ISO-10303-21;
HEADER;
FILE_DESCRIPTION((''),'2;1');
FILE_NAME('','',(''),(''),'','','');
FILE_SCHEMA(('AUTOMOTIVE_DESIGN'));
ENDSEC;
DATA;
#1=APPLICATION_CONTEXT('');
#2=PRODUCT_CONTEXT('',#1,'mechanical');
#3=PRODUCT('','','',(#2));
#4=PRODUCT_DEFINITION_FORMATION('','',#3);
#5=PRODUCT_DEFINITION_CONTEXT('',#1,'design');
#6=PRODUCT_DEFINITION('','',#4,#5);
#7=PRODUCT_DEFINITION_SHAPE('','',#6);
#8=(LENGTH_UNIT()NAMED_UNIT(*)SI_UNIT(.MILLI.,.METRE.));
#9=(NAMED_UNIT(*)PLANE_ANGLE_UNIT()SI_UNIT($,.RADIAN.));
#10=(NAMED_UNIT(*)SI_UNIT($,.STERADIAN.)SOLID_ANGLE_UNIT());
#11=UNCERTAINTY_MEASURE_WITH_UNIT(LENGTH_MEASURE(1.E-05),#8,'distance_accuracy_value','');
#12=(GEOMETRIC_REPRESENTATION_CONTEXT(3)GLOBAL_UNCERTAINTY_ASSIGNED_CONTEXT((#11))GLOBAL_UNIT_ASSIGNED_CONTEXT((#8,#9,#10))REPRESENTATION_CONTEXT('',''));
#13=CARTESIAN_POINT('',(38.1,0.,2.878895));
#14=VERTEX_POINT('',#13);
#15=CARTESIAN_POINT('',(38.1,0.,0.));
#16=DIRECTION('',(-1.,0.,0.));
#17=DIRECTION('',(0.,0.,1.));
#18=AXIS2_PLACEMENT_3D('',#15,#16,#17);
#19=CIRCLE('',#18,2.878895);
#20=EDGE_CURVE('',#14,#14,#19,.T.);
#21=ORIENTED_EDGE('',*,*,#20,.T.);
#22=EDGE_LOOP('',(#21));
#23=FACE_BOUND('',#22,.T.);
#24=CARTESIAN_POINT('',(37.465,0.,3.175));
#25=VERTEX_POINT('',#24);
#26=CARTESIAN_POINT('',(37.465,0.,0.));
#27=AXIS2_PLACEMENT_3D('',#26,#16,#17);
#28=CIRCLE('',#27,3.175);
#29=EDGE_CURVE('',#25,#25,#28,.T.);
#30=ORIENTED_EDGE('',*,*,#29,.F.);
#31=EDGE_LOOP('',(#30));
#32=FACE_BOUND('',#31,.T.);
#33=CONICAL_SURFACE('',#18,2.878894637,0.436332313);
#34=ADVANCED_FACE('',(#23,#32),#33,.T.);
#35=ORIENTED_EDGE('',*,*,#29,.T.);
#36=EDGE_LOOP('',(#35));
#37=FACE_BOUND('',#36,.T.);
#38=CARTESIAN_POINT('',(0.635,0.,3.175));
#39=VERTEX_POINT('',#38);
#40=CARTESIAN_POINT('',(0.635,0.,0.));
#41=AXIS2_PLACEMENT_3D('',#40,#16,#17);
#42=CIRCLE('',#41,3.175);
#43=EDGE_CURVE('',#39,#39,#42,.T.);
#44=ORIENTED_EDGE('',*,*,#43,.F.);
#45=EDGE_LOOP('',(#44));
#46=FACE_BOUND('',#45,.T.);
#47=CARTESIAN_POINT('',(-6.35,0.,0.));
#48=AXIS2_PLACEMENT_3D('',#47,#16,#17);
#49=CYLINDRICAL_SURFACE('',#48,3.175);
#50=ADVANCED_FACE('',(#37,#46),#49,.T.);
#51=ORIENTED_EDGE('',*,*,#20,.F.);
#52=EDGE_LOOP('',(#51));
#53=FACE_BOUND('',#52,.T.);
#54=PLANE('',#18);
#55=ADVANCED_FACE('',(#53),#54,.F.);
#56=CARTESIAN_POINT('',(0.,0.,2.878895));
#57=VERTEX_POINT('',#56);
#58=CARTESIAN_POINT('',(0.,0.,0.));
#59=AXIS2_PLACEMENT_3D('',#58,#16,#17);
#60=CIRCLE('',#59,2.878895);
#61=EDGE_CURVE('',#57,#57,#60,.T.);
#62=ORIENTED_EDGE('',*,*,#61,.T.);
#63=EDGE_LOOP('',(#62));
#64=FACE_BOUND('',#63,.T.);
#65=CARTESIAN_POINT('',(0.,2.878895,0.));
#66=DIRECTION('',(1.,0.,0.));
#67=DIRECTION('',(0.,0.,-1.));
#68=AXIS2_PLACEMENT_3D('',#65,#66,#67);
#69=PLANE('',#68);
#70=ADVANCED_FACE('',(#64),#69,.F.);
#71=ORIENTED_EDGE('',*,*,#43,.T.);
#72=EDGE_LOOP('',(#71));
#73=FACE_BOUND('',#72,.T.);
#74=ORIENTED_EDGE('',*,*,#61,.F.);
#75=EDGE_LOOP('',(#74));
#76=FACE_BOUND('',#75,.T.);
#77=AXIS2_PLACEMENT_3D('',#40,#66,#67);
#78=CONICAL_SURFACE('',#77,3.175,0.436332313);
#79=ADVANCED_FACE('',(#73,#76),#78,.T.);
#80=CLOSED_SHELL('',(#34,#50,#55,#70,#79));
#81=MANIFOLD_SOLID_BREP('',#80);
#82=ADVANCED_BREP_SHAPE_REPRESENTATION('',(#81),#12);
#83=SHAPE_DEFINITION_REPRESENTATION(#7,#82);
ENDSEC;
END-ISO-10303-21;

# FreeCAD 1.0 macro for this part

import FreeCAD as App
import Part
import Sketcher

V = App.Vector
Q = App.Units.Quantity


def add_polygon(sketch, points):
    """Adds a closed chain of lines whose ends are joined by coincident constraints."""
    first, n = sketch.GeometryCount, len(points)
    for a, b in zip(points, points[1:] + points[:1]):
        sketch.addGeometry(Part.LineSegment(App.Vector(*a, 0), App.Vector(*b, 0)), False)
    for i in range(n):
        sketch.addConstraint(Sketcher.Constraint("Coincident", first + i, 2, first + (i + 1) % n, 1))

doc = App.newDocument("Part")
params = doc.addObject("Spreadsheet::Sheet", "Params")
for row, (alias, value) in enumerate([
    ("sketch1_width", "1.5 in"),
    ("sketch1_width2", "1.45 in"),
    ("revolution_angle", "360 deg"),
], start=1):
    params.set(f"A{row}", alias)
    params.set(f"B{row}", "=" + value)
    params.setAlias(f"B{row}", alias)

body = doc.addObject("PartDesign::Body", "Body")

sketch1 = doc.addObject("Sketcher::SketchObject", "Sketch")
body.addObject(sketch1)
sketch1.AttachmentSupport = (doc.XY_Plane, [""])
sketch1.MapMode = "FlatFace"
add_polygon(sketch1, [(0, 0), (38.1, 0), (38.1, 2.9), (37.5, 3.2), (0.6, 3.2), (0, 2.9)])
sketch1.addConstraint(Sketcher.Constraint("Horizontal", 0))
sketch1.addConstraint(Sketcher.Constraint("Vertical", 1))
sketch1.addConstraint(Sketcher.Constraint("Horizontal", 3))
sketch1.addConstraint(Sketcher.Constraint("Vertical", 5))
sketch1.addConstraint(Sketcher.Constraint("Coincident", 5, 2, -1, 1))
sketch1.addConstraint(Sketcher.Constraint("Horizontal", 1, 2, 4, 2))
sketch1.addConstraint(Sketcher.Constraint("Equal", 2, 4))
sketch1.addConstraint(Sketcher.Constraint("DistanceX", 0, 1, 0, 2, Q("1.5 in")))
sketch1.addConstraint(Sketcher.Constraint("Angle", 2, Q("155 deg")))
sketch1.addConstraint(Sketcher.Constraint("DistanceX", 3, 2, 3, 1, Q("1.45 in")))
sketch1.addConstraint(Sketcher.Constraint("DistanceY", -1, 1, 2, 2, Q("0.125 in")))
sketch1.setExpression("Constraints[13]", "Params.sketch1_width")
sketch1.setExpression("Constraints[15]", "Params.sketch1_width2")
revolution = doc.addObject("PartDesign::Revolution", "Revolution")
body.addObject(revolution)
revolution.Profile = sketch1
revolution.ReferenceAxis = (sketch1, ["H_Axis"])
revolution.setExpression("Angle", "Params.revolution_angle")

doc.recompute()
